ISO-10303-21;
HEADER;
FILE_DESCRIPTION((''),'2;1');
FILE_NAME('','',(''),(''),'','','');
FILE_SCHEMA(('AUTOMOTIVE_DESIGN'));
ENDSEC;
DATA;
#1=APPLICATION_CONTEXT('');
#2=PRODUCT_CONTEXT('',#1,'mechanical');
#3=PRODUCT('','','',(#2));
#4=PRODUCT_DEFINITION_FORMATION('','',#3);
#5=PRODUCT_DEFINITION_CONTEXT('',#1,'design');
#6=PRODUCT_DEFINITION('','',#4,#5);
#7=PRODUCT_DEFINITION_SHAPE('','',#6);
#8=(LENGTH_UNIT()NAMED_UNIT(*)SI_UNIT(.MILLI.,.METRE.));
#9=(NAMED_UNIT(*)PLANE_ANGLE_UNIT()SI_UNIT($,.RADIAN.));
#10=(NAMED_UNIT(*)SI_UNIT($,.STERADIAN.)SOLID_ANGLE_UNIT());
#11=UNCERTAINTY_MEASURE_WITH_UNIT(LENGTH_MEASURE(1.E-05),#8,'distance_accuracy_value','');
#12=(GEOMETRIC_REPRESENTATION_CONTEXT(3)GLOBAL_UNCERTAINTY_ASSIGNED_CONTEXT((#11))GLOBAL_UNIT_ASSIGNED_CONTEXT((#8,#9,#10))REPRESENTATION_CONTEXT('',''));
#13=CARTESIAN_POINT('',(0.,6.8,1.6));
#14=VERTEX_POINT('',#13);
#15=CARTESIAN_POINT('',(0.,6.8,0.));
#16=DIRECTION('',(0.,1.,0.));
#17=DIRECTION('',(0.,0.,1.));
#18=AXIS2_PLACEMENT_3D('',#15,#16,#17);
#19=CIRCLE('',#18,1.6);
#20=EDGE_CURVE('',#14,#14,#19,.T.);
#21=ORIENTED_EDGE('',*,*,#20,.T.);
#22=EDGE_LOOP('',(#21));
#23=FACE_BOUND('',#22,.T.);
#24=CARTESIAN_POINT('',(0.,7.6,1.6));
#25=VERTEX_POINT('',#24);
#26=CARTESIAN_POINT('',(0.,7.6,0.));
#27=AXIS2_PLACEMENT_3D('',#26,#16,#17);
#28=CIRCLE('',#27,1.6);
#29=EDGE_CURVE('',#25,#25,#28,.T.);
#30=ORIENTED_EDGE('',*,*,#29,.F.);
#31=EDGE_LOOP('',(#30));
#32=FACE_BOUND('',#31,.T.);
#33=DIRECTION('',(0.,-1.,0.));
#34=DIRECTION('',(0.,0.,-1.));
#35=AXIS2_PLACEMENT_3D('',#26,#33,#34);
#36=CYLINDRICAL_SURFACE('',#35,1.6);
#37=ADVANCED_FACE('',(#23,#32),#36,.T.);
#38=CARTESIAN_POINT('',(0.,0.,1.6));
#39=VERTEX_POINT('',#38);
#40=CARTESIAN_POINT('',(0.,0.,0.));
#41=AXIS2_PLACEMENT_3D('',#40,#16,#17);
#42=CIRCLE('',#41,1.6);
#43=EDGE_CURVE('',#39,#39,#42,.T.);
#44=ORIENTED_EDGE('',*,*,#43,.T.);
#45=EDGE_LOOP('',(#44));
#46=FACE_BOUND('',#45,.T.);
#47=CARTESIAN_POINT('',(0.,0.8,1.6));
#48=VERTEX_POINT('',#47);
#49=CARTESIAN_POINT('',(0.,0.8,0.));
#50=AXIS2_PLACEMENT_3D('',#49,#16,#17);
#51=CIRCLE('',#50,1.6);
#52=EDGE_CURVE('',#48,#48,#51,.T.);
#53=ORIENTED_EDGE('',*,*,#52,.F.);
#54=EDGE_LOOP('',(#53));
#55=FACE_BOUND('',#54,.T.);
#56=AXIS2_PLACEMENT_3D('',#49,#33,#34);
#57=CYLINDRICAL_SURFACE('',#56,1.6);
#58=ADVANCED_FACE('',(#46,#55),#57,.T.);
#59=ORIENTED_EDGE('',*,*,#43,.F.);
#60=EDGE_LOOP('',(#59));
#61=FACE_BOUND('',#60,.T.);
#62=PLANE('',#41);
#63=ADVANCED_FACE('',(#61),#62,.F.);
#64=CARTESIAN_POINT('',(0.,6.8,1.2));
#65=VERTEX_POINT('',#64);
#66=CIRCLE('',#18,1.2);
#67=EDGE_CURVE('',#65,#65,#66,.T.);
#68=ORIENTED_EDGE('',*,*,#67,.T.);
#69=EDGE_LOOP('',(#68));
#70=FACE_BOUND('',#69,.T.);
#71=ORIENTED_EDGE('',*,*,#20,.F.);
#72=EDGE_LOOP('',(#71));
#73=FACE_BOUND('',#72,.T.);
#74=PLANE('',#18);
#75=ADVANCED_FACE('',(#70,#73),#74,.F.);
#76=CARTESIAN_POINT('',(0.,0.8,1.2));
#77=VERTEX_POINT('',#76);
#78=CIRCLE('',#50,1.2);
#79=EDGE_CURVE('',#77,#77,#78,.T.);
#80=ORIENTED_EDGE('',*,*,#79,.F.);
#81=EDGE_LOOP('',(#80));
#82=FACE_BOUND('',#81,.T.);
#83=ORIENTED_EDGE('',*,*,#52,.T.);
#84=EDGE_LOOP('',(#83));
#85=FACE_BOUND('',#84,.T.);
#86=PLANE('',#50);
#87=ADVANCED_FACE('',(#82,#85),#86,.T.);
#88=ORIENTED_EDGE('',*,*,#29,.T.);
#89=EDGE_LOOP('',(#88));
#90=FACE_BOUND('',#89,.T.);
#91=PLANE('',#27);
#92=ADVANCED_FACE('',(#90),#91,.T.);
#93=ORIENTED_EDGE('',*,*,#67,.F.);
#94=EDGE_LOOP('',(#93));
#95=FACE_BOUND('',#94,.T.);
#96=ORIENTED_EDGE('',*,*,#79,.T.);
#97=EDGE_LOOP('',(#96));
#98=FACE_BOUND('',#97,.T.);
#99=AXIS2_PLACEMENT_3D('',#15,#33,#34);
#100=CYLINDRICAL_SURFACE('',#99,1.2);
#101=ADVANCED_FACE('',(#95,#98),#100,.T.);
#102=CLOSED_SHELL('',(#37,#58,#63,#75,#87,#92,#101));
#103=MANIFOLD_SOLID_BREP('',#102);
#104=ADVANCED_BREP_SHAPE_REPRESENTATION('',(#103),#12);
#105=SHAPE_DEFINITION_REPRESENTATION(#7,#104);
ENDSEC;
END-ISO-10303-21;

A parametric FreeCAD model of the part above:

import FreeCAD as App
import Part
import Sketcher
Q = App.Units.Quantity

doc = App.newDocument("Part")
body = doc.addObject("PartDesign::Body", "Body")

# Sketch on XZ plane
sketch1 = body.newObject("Sketcher::SketchObject", "Sketch")
sketch1.AttachmentSupport = (doc.getObject("XZ_Plane"), [""])
sketch1.MapMode = "FlatFace"
sketch1.addGeometry(Part.Circle(App.Vector(0, 0, 0), App.Vector(0, 0, 1), 1.6), False)
sketch1.addConstraint([
    Sketcher.Constraint("Coincident", 0, 3, -1, 1),
    Sketcher.Constraint("Diameter", 0, Q("3.2 mm")),
])
pad1 = body.newObject("PartDesign::Pad", "Pad")
pad1.Profile = sketch1
pad1.Length = 0.8
pad1.Reversed = True

# Sketch on XZ plane
sketch2 = body.newObject("Sketcher::SketchObject", "Sketch001")
sketch2.AttachmentSupport = (doc.getObject("XZ_Plane"), [""])
sketch2.MapMode = "FlatFace"
sketch2.AttachmentOffset = App.Placement(App.Vector(0, 0, -0.8), App.Rotation())
sketch2.addGeometry(Part.Circle(App.Vector(0, 0, 0), App.Vector(0, 0, 1), 1.2), False)
sketch2.addConstraint([
    Sketcher.Constraint("Coincident", 0, 3, -1, 1),
    Sketcher.Constraint("Diameter", 0, Q("2.4 mm")),
])
pad2 = body.newObject("PartDesign::Pad", "Pad001")
pad2.Profile = sketch2
pad2.Length = 6
pad2.Reversed = True

# Sketch on XZ plane
sketch3 = body.newObject("Sketcher::SketchObject", "Sketch002")
sketch3.AttachmentSupport = (doc.getObject("XZ_Plane"), [""])
sketch3.MapMode = "FlatFace"
sketch3.AttachmentOffset = App.Placement(App.Vector(0, 0, -6.8), App.Rotation())
sketch3.addGeometry(Part.Circle(App.Vector(0, 0, 0), App.Vector(0, 0, 1), 1.6), False)
sketch3.addConstraint([
    Sketcher.Constraint("Coincident", 0, 3, -1, 1),
    Sketcher.Constraint("Diameter", 0, Q("3.2 mm")),
])
pad3 = body.newObject("PartDesign::Pad", "Pad002")
pad3.Profile = sketch3
pad3.Length = 0.8
pad3.Reversed = True

doc.recompute()
